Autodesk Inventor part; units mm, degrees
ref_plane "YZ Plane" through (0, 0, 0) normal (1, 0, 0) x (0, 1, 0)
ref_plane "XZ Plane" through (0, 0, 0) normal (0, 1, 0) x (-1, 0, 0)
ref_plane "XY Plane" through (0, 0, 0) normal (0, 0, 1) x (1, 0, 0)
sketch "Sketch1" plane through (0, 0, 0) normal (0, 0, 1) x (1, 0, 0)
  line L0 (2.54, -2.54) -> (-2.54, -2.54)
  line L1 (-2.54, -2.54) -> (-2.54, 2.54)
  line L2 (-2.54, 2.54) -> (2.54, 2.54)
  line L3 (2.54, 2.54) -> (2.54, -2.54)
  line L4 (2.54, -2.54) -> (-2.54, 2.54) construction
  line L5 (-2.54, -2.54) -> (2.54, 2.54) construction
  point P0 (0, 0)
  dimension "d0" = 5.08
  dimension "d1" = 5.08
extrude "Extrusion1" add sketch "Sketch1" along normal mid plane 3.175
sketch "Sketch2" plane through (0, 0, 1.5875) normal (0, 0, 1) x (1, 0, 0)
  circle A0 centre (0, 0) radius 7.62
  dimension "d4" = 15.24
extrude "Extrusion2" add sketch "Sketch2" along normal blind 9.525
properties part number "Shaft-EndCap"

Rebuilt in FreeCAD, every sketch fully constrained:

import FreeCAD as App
import Part
import Sketcher

V = App.Vector
Q = App.Units.Quantity

doc = App.newDocument("Part")
body = doc.addObject("PartDesign::Body", "Body")

# Sketch on XY plane
sketch1 = doc.addObject("Sketcher::SketchObject", "Sketch")
body.addObject(sketch1)
sketch1.AttachmentSupport = (doc.XY_Plane, [""])
sketch1.MapMode = "FlatFace"
sketch1.addGeometry([
    Part.LineSegment(V(-3, -3, 0), V(3, -3, 0)),
    Part.LineSegment(V(3, -3, 0), V(3, 3, 0)),
    Part.LineSegment(V(3, 3, 0), V(-3, 3, 0)),
    Part.LineSegment(V(-3, 3, 0), V(-3, -3, 0)),
], False)
sketch1.addConstraint([
    Sketcher.Constraint("Coincident", 0, 2, 1, 1),
    Sketcher.Constraint("Coincident", 1, 2, 2, 1),
    Sketcher.Constraint("Coincident", 2, 2, 3, 1),
    Sketcher.Constraint("Coincident", 3, 2, 0, 1),
    Sketcher.Constraint("Horizontal", 0),
    Sketcher.Constraint("Vertical", 1),
    Sketcher.Constraint("Horizontal", 2),
    Sketcher.Constraint("Vertical", 3),
    Sketcher.Constraint("Symmetric", 0, 2, 2, 2, -1, 1),
    Sketcher.Constraint("Equal", 2, 1),
    Sketcher.Constraint("DistanceX", 0, 1, 0, 2, Q("0.2 in")),
])
pad1 = doc.addObject("PartDesign::Pad", "Pad")
body.addObject(pad1)
pad1.Profile = sketch1
pad1.Length = Q("0.125 in")
pad1.Midplane = True

# Sketch on XY plane
sketch2 = doc.addObject("Sketcher::SketchObject", "Sketch001")
body.addObject(sketch2)
sketch2.AttachmentSupport = (doc.XY_Plane, [""])
sketch2.MapMode = "FlatFace"
sketch2.AttachmentOffset = App.Placement(V(0, 0, 0.0625 * 25.4), App.Rotation())
sketch2.addGeometry(Part.Circle(V(0, 0, 0), V(0, 0, 1), 8), False)
sketch2.addConstraint([
    Sketcher.Constraint("Coincident", 0, 3, -1, 1),
    Sketcher.Constraint("Diameter", 0, Q("0.6 in")),
])
pad2 = doc.addObject("PartDesign::Pad", "Pad001")
body.addObject(pad2)
pad2.Profile = sketch2
pad2.Length = Q("0.375 in")

doc.recompute()
